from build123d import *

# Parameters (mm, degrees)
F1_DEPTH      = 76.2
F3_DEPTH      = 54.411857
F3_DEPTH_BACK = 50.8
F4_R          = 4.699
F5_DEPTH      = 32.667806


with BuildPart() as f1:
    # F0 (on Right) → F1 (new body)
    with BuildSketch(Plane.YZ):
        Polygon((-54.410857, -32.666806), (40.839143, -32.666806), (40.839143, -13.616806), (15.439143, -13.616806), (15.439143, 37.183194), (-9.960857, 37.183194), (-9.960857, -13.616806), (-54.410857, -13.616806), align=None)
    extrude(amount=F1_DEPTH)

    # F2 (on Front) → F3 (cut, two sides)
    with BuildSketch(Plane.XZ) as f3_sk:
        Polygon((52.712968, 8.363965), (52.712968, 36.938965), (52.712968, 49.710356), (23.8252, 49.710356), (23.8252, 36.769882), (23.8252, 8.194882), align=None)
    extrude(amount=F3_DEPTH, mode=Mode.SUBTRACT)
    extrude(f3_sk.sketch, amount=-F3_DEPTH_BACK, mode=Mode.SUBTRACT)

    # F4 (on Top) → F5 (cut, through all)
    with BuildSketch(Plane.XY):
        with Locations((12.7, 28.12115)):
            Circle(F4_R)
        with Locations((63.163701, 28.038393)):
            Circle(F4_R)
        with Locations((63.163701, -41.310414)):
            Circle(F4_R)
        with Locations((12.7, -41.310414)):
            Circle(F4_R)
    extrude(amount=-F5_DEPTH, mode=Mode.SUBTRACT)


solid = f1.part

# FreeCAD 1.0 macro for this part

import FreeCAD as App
import Part
import Sketcher
Q = App.Units.Quantity

doc = App.newDocument("Part")
body = doc.addObject("PartDesign::Body", "Body")

sketch1 = body.newObject("Sketcher::SketchObject", "Sketch")
sketch1.AttachmentSupport = (doc.getObject("YZ_Plane"), [""])
sketch1.MapMode = "FlatFace"
sketch1.addGeometry([
    Part.LineSegment(App.Vector(-54.410857, -32.666806, 0), App.Vector(40.839143, -32.666806, 0)),
    Part.LineSegment(App.Vector(40.839143, -32.666806, 0), App.Vector(40.839143, -13.616806, 0)),
    Part.LineSegment(App.Vector(40.839143, -13.616806, 0), App.Vector(15.439143, -13.616806, 0)),
    Part.LineSegment(App.Vector(15.439143, -13.616806, 0), App.Vector(15.439143, 37.183194, 0)),
    Part.LineSegment(App.Vector(15.439143, 37.183194, 0), App.Vector(-9.960857, 37.183194, 0)),
    Part.LineSegment(App.Vector(-9.960857, 37.183194, 0), App.Vector(-9.960857, -13.616806, 0)),
    Part.LineSegment(App.Vector(-9.960857, -13.616806, 0), App.Vector(-54.410857, -13.616806, 0)),
    Part.LineSegment(App.Vector(-54.410857, -13.616806, 0), App.Vector(-54.410857, -32.666806, 0)),
], False)
sketch1.addConstraint([
    Sketcher.Constraint("Coincident", 0, 2, 1, 1),
    Sketcher.Constraint("Coincident", 1, 2, 2, 1),
    Sketcher.Constraint("Coincident", 2, 2, 3, 1),
    Sketcher.Constraint("Coincident", 3, 2, 4, 1),
    Sketcher.Constraint("Coincident", 4, 2, 5, 1),
    Sketcher.Constraint("Coincident", 5, 2, 6, 1),
    Sketcher.Constraint("Coincident", 6, 2, 7, 1),
    Sketcher.Constraint("Coincident", 7, 2, 0, 1),
    Sketcher.Constraint("Horizontal", 0),
    Sketcher.Constraint("Vertical", 1),
    Sketcher.Constraint("Horizontal", 2),
    Sketcher.Constraint("Vertical", 3),
    Sketcher.Constraint("Horizontal", 4),
    Sketcher.Constraint("Vertical", 5),
    Sketcher.Constraint("Horizontal", 6),
    Sketcher.Constraint("Vertical", 7),
    Sketcher.Constraint("Horizontal", 2, 2, 5, 2),
    Sketcher.Constraint("Equal", 2, 4),
    Sketcher.Constraint("DistanceX", 2, 2, 2, 1, Q("1 in")),
    Sketcher.Constraint("DistanceY", 3, 1, 3, 2, Q("2 in")),
    Sketcher.Constraint("DistanceX", 0, 1, 0, 2, Q("3.75 in")),
    Sketcher.Constraint("DistanceY", 1, 1, 1, 2, Q("0.75 in")),
    Sketcher.Constraint("DistanceX", -1, 1, 0, 2, Q("40.839143 mm")),
    Sketcher.Constraint("DistanceY", 0, 2, -1, 1, Q("32.666806 mm")),
])
pad1 = body.newObject("PartDesign::Pad", "Pad")
pad1.Profile = sketch1
pad1.Length = Q("3 in")

sketch2 = body.newObject("Sketcher::SketchObject", "Sketch001")
sketch2.AttachmentSupport = (doc.getObject("XZ_Plane"), [""])
sketch2.MapMode = "FlatFace"
sketch2.addGeometry([
    Part.LineSegment(App.Vector(52.712968, 8.363965, 0), App.Vector(52.712968, 49.710356, 0)),
    Part.LineSegment(App.Vector(52.712968, 49.710356, 0), App.Vector(23.8252, 49.710356, 0)),
    Part.LineSegment(App.Vector(23.8252, 49.710356, 0), App.Vector(23.8252, 8.194882, 0)),
    Part.LineSegment(App.Vector(23.8252, 8.194882, 0), App.Vector(52.712968, 8.363965, 0)),
], False)
sketch2.addConstraint([
    Sketcher.Constraint("Coincident", 0, 2, 1, 1),
    Sketcher.Constraint("Coincident", 1, 2, 2, 1),
    Sketcher.Constraint("Coincident", 2, 2, 3, 1),
    Sketcher.Constraint("Coincident", 3, 2, 0, 1),
    Sketcher.Constraint("Vertical", 0),
    Sketcher.Constraint("Horizontal", 1),
    Sketcher.Constraint("Vertical", 2),
    Sketcher.Constraint("DistanceX", -1, 1, 1, 2, Q("0.938 in")),
    Sketcher.Constraint("DistanceY", 0, 1, 0, 2, Q("41.346391 mm")),
    Sketcher.Constraint("DistanceX", 1, 2, 1, 1, Q("28.887768 mm")),
    Sketcher.Constraint("DistanceY", 2, 2, 2, 1, Q("41.515474 mm")),
    Sketcher.Constraint("DistanceY", -1, 1, 0, 2, Q("49.710356 mm")),
])
pocket1 = body.newObject("PartDesign::Pocket", "Pocket")
pocket1.Profile = sketch2
pocket1.Type = "ThroughAll"
pocket1.Midplane = True

sketch3 = body.newObject("Sketcher::SketchObject", "Sketch002")
sketch3.AttachmentSupport = (doc.getObject("XY_Plane"), [""])
sketch3.MapMode = "FlatFace"
sketch3.addGeometry([
    Part.Circle(App.Vector(12.7, 28.12115, 0), App.Vector(0, 0, 1), 4.699),
    Part.Circle(App.Vector(63.163701, 28.038393, 0), App.Vector(0, 0, 1), 4.699),
    Part.Circle(App.Vector(63.163701, -41.310414, 0), App.Vector(0, 0, 1), 4.699),
    Part.Circle(App.Vector(12.7, -41.310414, 0), App.Vector(0, 0, 1), 4.699),
], False)
sketch3.addConstraint([
    Sketcher.Constraint("Equal", 0, 1),
    Sketcher.Constraint("Equal", 1, 2),
    Sketcher.Constraint("Equal", 2, 3),
    Sketcher.Constraint("Horizontal", 2, 3, 3, 3),
    Sketcher.Constraint("Vertical", 1, 3, 2, 3),
    Sketcher.Constraint("Vertical", 0, 3, 3, 3),
    Sketcher.Constraint("Diameter", 0, Q("0.37 in")),
    Sketcher.Constraint("DistanceX", -1, 1, 0, 3, Q("0.5 in")),
    Sketcher.Constraint("DistanceX", -1, 1, 1, 3, Q("63.163701 mm")),
    Sketcher.Constraint("DistanceY", -1, 1, 0, 3, Q("28.12115 mm")),
    Sketcher.Constraint("DistanceY", -1, 1, 1, 3, Q("28.038393 mm")),
    Sketcher.Constraint("DistanceY", 2, 3, -1, 1, Q("41.310414 mm")),
])
pocket2 = body.newObject("PartDesign::Pocket", "Pocket001")
pocket2.Profile = sketch3
pocket2.Type = "ThroughAll"

doc.recompute()
